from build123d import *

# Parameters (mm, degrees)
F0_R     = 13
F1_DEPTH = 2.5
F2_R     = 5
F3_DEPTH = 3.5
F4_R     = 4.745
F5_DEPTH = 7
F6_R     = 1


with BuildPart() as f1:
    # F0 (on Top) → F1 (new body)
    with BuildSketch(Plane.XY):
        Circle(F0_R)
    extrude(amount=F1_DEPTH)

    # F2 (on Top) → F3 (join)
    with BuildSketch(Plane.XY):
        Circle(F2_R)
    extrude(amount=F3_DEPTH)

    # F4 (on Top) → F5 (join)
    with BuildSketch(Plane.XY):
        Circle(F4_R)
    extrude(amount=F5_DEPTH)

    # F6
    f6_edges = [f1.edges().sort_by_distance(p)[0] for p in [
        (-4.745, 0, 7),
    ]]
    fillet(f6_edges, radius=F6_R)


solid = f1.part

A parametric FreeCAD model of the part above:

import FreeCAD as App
import Part
import Sketcher

V = App.Vector


def edges_at(feature, points):
    """Names of the edges that pass closest to the given points."""
    edges = feature.Shape.Edges
    near = lambda p: min(range(len(edges)), key=lambda i: edges[i].distToShape(Part.Vertex(*p))[0])
    return sorted({f"Edge{near(p) + 1}" for p in points})

doc = App.newDocument("Part")
params = doc.addObject("Spreadsheet::Sheet", "Params")
for row, (alias, value) in enumerate([
    ("sketch1_diameter", "26 mm"),
    ("pad1_length", "2.5 mm"),
    ("sketch2_diameter", "10 mm"),
    ("pad2_length", "3.5 mm"),
    ("sketch3_diameter", "9.49 mm"),
    ("pad3_length", "7 mm"),
    ("fillet_radius", "1 mm"),
], start=1):
    params.set(f"A{row}", alias)
    params.set(f"B{row}", "=" + value)
    params.setAlias(f"B{row}", alias)

body = doc.addObject("PartDesign::Body", "Body")

# Sketch on XY plane
sketch1 = doc.addObject("Sketcher::SketchObject", "Sketch")
body.addObject(sketch1)
sketch1.AttachmentSupport = (doc.XY_Plane, [""])
sketch1.MapMode = "FlatFace"
sketch1.addGeometry(Part.Circle(V(0, 0, 0), V(0, 0, 1), 13), False)
sketch1.addConstraint([
    Sketcher.Constraint("Coincident", 0, 3, -1, 1),
    Sketcher.Constraint("Diameter", 0, 26.0),
])
sketch1.setExpression("Constraints[1]", "Params.sketch1_diameter")
pad1 = doc.addObject("PartDesign::Pad", "Pad")
body.addObject(pad1)
pad1.Profile = sketch1
pad1.setExpression("Length", "Params.pad1_length")

# Sketch on XY plane
sketch2 = doc.addObject("Sketcher::SketchObject", "Sketch001")
body.addObject(sketch2)
sketch2.AttachmentSupport = (doc.XY_Plane, [""])
sketch2.MapMode = "FlatFace"
sketch2.addGeometry(Part.Circle(V(0, 0, 0), V(0, 0, 1), 5), False)
sketch2.addConstraint([
    Sketcher.Constraint("Coincident", 0, 3, -1, 1),
    Sketcher.Constraint("Diameter", 0, 10.0),
])
sketch2.setExpression("Constraints[1]", "Params.sketch2_diameter")
pad2 = doc.addObject("PartDesign::Pad", "Pad001")
body.addObject(pad2)
pad2.Profile = sketch2
pad2.setExpression("Length", "Params.pad2_length")

# Sketch on XY plane
sketch3 = doc.addObject("Sketcher::SketchObject", "Sketch002")
body.addObject(sketch3)
sketch3.AttachmentSupport = (doc.XY_Plane, [""])
sketch3.MapMode = "FlatFace"
sketch3.addGeometry(Part.Circle(V(0, 0, 0), V(0, 0, 1), 4.7), False)
sketch3.addConstraint([
    Sketcher.Constraint("Coincident", 0, 3, -1, 1),
    Sketcher.Constraint("Diameter", 0, 9.49),
])
sketch3.setExpression("Constraints[1]", "Params.sketch3_diameter")
pad3 = doc.addObject("PartDesign::Pad", "Pad002")
body.addObject(pad3)
pad3.Profile = sketch3
pad3.setExpression("Length", "Params.pad3_length")
doc.recompute()

fillet = doc.addObject("PartDesign::Fillet", "Fillet")
body.addObject(fillet)
fillet.Base = (pad3, edges_at(pad3, [(-4.745, 0, 7)]))
fillet.setExpression("Radius", "Params.fillet_radius")

doc.recompute()
